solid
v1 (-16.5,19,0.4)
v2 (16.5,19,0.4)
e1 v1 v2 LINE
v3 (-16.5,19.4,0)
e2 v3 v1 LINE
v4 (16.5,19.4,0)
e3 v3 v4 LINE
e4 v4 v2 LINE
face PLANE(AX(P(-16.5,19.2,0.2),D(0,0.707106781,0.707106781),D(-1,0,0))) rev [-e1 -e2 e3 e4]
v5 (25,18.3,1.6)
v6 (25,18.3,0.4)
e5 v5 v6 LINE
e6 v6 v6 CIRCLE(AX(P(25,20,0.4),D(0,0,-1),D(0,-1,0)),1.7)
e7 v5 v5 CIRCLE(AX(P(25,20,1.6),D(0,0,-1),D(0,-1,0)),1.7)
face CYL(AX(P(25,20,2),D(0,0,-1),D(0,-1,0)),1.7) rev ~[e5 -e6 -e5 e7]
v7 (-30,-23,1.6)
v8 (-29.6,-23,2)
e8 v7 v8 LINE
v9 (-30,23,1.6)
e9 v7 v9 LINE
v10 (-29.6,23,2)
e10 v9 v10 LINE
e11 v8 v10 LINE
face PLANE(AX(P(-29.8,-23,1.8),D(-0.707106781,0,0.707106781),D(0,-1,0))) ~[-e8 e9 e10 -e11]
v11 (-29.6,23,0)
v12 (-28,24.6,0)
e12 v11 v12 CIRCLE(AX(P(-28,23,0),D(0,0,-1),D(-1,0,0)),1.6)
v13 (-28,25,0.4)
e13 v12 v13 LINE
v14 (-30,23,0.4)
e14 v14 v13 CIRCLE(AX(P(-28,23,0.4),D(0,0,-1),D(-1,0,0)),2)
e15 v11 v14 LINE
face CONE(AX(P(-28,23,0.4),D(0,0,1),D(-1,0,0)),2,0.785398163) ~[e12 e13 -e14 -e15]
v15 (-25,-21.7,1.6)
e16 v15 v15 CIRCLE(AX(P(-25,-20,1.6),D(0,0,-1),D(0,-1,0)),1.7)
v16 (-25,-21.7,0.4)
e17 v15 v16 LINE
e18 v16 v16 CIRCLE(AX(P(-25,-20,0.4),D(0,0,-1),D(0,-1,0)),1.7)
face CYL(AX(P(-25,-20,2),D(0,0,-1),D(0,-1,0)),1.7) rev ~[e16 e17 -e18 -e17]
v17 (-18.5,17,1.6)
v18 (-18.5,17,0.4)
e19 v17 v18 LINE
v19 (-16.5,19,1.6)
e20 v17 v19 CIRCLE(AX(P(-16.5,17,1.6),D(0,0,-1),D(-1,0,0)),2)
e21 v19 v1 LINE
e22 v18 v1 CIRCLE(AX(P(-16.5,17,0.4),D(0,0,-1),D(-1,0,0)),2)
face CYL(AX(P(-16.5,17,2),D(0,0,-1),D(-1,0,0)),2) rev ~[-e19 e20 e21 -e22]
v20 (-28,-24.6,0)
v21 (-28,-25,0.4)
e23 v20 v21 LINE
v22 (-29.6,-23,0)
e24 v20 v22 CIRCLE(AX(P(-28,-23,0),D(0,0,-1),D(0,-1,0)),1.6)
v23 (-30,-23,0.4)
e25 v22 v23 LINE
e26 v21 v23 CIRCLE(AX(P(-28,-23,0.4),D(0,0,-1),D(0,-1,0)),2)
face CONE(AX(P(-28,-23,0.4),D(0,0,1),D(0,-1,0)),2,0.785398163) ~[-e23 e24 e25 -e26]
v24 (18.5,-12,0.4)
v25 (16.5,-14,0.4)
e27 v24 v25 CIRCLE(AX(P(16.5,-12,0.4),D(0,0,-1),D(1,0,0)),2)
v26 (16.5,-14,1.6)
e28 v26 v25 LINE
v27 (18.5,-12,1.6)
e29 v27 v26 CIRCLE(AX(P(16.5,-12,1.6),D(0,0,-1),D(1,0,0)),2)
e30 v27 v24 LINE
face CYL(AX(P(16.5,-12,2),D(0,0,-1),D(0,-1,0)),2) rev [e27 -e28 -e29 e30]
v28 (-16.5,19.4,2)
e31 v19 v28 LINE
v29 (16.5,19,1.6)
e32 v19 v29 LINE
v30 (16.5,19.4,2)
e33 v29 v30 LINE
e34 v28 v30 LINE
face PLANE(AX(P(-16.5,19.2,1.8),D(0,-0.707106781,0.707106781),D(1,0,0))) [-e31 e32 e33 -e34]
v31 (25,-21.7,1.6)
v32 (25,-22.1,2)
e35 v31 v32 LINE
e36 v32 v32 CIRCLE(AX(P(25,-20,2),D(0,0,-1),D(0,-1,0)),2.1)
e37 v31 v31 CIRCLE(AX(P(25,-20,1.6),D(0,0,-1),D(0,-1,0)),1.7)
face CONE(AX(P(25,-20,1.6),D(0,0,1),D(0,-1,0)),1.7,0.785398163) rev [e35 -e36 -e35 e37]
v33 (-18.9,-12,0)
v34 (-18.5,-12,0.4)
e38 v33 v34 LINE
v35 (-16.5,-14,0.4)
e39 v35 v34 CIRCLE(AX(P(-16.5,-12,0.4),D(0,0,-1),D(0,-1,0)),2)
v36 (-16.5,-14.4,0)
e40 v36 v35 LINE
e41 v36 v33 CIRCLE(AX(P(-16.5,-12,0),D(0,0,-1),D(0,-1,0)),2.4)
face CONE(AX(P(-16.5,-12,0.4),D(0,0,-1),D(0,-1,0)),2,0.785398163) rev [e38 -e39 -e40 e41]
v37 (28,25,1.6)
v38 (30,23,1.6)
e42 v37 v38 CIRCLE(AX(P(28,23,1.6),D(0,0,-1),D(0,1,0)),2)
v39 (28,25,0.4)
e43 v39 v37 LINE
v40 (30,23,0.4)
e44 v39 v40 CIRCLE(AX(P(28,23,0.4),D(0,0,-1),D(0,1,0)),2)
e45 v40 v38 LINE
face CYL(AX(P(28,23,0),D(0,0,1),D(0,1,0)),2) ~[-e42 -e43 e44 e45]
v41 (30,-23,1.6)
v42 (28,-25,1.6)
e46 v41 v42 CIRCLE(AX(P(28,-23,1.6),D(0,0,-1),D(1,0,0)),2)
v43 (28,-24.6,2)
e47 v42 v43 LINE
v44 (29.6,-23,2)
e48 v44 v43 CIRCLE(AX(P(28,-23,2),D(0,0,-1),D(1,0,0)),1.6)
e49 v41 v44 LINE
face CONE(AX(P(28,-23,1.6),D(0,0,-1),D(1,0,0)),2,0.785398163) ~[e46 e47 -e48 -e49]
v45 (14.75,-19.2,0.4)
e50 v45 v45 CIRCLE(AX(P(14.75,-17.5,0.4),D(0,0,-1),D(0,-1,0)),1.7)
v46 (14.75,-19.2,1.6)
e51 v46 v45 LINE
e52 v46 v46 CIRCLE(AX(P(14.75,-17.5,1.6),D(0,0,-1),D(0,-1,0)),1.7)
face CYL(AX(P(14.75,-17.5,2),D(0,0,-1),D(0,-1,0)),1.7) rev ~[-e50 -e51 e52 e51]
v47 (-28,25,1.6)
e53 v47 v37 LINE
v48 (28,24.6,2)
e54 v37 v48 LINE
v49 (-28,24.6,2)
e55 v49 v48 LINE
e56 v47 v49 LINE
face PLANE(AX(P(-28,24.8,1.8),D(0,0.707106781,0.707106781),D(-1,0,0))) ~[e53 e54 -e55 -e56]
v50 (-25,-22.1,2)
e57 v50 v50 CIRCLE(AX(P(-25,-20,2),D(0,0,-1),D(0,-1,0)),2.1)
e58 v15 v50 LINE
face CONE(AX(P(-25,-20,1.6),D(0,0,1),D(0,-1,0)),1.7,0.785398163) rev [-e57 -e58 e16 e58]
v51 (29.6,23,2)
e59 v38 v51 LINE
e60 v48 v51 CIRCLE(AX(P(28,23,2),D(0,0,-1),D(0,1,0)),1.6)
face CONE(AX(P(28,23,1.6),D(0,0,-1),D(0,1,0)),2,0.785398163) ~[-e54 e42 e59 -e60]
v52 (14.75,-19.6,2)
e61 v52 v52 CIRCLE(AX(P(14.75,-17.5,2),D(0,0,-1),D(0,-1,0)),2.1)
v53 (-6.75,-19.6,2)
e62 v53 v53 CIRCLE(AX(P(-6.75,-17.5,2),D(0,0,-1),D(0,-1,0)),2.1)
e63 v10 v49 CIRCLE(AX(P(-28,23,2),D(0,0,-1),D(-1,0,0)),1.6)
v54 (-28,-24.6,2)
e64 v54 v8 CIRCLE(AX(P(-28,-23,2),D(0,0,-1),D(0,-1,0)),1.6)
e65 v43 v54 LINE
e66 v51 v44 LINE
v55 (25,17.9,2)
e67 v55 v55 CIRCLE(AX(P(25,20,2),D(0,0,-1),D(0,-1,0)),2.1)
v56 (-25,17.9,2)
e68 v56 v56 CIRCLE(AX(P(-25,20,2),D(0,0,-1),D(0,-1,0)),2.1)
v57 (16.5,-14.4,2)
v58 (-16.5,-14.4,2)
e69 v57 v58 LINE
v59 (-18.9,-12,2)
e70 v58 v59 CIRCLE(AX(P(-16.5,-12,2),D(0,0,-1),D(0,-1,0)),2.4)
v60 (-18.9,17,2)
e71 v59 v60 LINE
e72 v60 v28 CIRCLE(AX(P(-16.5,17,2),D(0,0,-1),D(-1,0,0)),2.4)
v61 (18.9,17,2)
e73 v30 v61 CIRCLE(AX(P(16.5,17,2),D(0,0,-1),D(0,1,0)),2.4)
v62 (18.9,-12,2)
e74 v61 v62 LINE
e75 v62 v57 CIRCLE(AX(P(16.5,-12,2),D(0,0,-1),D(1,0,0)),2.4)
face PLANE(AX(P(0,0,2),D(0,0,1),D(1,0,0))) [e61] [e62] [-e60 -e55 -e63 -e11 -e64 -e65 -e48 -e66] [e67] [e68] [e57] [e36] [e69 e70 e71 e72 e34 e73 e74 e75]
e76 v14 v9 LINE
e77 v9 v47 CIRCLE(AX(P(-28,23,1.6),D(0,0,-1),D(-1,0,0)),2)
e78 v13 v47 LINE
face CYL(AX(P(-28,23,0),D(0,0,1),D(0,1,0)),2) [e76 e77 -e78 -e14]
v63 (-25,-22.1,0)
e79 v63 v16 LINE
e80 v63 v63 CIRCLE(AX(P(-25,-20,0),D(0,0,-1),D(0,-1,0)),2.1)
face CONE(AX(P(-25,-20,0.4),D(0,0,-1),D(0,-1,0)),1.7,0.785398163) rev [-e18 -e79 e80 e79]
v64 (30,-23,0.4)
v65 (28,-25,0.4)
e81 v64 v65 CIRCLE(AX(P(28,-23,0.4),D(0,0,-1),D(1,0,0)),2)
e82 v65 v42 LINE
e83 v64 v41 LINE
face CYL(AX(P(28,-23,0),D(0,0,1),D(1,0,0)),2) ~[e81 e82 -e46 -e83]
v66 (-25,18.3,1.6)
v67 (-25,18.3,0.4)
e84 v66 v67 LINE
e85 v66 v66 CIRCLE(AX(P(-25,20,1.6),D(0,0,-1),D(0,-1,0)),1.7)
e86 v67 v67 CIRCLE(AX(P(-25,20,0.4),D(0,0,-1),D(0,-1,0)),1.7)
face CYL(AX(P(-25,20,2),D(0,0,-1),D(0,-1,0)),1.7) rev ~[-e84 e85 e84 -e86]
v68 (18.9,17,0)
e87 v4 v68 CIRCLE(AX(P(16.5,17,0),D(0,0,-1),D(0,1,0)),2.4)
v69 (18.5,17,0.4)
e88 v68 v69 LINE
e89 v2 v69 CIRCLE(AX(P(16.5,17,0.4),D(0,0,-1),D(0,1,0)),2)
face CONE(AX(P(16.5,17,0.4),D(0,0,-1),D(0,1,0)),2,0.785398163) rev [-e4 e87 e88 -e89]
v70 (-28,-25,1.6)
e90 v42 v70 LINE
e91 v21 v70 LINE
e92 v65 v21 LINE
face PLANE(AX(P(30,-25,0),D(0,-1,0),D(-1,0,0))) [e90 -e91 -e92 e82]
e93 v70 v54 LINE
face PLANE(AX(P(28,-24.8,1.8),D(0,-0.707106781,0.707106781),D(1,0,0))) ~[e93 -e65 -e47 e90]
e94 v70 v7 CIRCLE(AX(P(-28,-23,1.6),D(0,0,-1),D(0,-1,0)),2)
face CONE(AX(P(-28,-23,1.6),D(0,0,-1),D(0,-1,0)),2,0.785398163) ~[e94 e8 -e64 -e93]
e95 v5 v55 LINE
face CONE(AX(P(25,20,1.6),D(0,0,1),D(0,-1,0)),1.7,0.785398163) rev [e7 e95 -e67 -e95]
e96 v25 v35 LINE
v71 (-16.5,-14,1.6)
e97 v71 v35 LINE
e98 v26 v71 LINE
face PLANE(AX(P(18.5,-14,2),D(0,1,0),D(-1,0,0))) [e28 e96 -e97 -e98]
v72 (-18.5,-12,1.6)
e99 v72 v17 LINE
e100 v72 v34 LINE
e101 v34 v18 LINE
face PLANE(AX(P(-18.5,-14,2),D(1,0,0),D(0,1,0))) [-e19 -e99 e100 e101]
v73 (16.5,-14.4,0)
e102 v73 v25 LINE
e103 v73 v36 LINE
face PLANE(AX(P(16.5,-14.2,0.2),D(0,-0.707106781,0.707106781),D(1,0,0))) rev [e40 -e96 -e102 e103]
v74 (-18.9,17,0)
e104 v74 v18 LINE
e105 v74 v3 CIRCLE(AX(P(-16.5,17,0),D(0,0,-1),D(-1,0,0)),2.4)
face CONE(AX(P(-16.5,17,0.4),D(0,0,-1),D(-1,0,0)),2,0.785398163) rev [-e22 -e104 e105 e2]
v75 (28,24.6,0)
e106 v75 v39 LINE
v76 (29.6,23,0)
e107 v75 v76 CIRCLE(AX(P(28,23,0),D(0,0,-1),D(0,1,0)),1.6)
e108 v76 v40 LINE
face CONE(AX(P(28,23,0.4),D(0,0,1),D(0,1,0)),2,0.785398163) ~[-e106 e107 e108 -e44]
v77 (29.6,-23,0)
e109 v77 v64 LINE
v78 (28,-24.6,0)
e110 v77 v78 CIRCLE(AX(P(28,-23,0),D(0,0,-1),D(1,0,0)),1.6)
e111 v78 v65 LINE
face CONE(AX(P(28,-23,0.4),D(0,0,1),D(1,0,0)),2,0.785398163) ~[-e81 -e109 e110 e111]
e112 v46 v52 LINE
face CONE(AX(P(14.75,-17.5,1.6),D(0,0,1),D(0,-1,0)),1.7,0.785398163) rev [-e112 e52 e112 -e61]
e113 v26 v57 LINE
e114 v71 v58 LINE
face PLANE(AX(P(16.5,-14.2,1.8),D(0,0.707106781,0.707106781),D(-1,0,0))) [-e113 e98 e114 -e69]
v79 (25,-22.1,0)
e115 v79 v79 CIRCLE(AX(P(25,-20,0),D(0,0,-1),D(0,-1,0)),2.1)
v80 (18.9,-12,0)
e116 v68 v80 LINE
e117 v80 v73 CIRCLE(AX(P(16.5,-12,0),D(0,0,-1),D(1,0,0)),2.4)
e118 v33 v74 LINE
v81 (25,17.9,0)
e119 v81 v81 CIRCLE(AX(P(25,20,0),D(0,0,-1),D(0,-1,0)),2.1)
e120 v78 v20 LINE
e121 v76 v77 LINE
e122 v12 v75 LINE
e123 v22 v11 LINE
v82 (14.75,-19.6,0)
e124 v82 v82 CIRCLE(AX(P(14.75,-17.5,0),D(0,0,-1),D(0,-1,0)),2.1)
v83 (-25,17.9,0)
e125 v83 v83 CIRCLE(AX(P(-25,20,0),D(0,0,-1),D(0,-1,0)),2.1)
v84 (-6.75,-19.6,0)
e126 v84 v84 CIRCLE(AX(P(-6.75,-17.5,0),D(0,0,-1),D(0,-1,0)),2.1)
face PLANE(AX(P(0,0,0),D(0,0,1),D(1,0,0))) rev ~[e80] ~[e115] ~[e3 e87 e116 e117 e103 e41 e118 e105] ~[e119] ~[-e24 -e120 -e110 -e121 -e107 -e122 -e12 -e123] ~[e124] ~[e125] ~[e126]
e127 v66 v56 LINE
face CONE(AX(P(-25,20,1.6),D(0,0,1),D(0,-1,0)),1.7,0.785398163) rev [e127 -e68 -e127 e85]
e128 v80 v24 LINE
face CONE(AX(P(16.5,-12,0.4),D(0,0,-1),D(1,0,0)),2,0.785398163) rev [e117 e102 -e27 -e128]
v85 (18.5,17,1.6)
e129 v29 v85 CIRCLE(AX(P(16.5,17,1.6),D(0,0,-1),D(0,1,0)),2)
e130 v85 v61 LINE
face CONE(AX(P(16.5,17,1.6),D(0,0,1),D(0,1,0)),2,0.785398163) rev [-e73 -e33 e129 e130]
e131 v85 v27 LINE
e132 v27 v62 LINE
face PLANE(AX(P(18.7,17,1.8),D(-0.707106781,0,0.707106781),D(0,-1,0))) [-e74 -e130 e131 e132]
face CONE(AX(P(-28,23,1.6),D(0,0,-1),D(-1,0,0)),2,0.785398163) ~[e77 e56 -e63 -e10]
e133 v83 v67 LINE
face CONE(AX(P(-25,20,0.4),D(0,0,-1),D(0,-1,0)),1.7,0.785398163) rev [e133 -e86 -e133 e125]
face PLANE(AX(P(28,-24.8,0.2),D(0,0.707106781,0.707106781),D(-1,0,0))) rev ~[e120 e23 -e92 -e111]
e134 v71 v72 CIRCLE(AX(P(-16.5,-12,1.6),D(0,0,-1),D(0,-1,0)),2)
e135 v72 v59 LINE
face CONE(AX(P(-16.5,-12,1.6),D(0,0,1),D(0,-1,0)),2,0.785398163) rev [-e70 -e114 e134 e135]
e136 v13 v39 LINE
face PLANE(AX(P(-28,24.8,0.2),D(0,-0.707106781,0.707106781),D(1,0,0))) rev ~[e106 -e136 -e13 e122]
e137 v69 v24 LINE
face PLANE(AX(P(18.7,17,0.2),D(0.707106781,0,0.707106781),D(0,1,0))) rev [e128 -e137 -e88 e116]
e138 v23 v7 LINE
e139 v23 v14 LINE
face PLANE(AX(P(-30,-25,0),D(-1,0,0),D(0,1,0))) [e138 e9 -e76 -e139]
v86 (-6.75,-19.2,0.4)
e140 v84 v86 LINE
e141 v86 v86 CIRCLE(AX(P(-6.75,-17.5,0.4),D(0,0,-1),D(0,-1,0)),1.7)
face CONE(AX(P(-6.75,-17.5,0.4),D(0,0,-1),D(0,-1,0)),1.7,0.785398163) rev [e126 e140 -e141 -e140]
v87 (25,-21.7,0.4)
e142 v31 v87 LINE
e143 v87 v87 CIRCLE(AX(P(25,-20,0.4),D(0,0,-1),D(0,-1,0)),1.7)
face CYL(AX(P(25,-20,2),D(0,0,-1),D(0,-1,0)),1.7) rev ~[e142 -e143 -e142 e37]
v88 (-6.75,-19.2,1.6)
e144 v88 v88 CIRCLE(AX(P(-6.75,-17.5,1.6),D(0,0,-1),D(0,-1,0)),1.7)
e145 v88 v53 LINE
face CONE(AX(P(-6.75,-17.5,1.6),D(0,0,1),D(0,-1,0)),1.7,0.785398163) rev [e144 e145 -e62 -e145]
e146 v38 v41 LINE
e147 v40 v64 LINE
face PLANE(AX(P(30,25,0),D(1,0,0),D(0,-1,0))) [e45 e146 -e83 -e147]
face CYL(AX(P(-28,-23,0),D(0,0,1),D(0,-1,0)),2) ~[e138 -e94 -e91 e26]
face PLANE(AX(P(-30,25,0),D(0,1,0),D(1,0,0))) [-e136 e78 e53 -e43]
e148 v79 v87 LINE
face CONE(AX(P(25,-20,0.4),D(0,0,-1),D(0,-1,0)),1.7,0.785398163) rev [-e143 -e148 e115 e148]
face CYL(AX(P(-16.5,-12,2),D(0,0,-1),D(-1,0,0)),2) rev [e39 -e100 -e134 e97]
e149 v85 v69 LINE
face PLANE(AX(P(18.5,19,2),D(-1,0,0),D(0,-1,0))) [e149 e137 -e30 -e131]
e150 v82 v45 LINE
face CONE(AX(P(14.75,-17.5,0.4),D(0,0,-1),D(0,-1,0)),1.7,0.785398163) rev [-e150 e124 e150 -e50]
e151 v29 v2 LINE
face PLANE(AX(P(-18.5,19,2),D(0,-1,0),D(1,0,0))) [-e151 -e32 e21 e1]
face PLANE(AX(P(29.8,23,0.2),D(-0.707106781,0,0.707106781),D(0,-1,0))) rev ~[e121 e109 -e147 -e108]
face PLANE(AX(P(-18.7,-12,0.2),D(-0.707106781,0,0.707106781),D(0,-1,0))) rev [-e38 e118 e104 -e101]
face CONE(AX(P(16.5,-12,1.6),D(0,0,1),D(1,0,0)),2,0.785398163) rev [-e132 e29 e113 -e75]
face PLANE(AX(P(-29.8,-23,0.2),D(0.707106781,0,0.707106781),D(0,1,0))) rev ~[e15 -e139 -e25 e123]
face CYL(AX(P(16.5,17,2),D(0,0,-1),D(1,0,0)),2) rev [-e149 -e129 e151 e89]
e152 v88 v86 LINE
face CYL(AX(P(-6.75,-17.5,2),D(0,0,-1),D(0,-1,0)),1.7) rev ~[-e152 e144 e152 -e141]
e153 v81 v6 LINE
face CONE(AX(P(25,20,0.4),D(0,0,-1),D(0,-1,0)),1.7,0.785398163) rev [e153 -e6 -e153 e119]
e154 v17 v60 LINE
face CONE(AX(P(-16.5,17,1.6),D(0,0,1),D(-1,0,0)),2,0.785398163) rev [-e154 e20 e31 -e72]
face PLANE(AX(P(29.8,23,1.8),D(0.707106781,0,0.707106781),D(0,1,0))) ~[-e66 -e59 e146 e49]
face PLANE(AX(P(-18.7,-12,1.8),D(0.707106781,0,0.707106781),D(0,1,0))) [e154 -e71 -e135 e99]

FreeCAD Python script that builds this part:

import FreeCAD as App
import Part
import Sketcher

V = App.Vector


def edges_at(feature, points):
    """Names of the edges that pass closest to the given points."""
    edges = feature.Shape.Edges
    near = lambda p: min(range(len(edges)), key=lambda i: edges[i].distToShape(Part.Vertex(*p))[0])
    return sorted({f"Edge{near(p) + 1}" for p in points})

doc = App.newDocument("Part")
body = doc.addObject("PartDesign::Body", "Body")

sketch1 = body.newObject("Sketcher::SketchObject", "Sketch")
sketch1.AttachmentSupport = (doc.getObject("XY_Plane"), [""])
sketch1.MapMode = "FlatFace"
sketch1.addGeometry(Part.LineSegment(V(30, 25, 0), V(-30, 25, 0)), False)
sketch1.addGeometry(Part.LineSegment(V(-30, 25, 0), V(-30, -25, 0)), False)
sketch1.addGeometry(Part.LineSegment(V(-30, -25, 0), V(30, -25, 0)), False)
sketch1.addGeometry(Part.LineSegment(V(30, -25, 0), V(30, 25, 0)), False)
sketch1.addConstraint(Sketcher.Constraint("Coincident", 0, 2, 1, 1))
sketch1.addConstraint(Sketcher.Constraint("Coincident", 1, 2, 2, 1))
sketch1.addConstraint(Sketcher.Constraint("Coincident", 2, 2, 3, 1))
sketch1.addConstraint(Sketcher.Constraint("Coincident", 3, 2, 0, 1))
sketch1.addConstraint(Sketcher.Constraint("Horizontal", 0))
sketch1.addConstraint(Sketcher.Constraint("Vertical", 1))
sketch1.addConstraint(Sketcher.Constraint("Horizontal", 2))
sketch1.addConstraint(Sketcher.Constraint("Vertical", 3))
sketch1.addConstraint(Sketcher.Constraint("Symmetric", 0, 2, 2, 2, -1, 1))
sketch1.addConstraint(Sketcher.Constraint("DistanceX", 0, 2, 0, 1, 60.0))
sketch1.addConstraint(Sketcher.Constraint("DistanceY", 1, 2, 1, 1, 50.0))
pad1 = body.newObject("PartDesign::Pad", "Pad")
pad1.Profile = sketch1
pad1.Length = 2
doc.recompute()

fillet = body.newObject("PartDesign::Fillet", "Fillet")
fillet.Base = (pad1, edges_at(pad1, [
    (30, 25, 1),
    (-30, 25, 1),
    (30, -25, 1),
    (-30, -25, 1),
]))
fillet.Radius = 2

sketch2 = body.newObject("Sketcher::SketchObject", "Sketch001")
sketch2.AttachmentSupport = (doc.getObject("XY_Plane"), [""])
sketch2.MapMode = "FlatFace"
sketch2.AttachmentOffset = App.Placement(V(0, 0, 2), App.Rotation())
sketch2.addGeometry(Part.Circle(V(-25, 20, 0), V(0, 0, 1), 1.7), False)
sketch2.addGeometry(Part.Circle(V(25, 20, 0), V(0, 0, 1), 1.7), False)
sketch2.addGeometry(Part.Circle(V(-25, -20, 0), V(0, 0, 1), 1.7), False)
sketch2.addGeometry(Part.Circle(V(25, -20, 0), V(0, 0, 1), 1.7), False)
sketch2.addConstraint(Sketcher.Constraint("Equal", 0, 1))
sketch2.addConstraint(Sketcher.Constraint("Equal", 1, 2))
sketch2.addConstraint(Sketcher.Constraint("Equal", 2, 3))
sketch2.addConstraint(Sketcher.Constraint("Symmetric", 1, 3, 2, 3, -1, 1))
sketch2.addConstraint(Sketcher.Constraint("Symmetric", 0, 3, 3, 3, -1, 1))
sketch2.addConstraint(Sketcher.Constraint("Symmetric", 0, 3, 1, 3, -2))
sketch2.addConstraint(Sketcher.Constraint("Diameter", 0, 3.4))
sketch2.addConstraint(Sketcher.Constraint("DistanceX", 0, 3, -1, 1, 25.0))
sketch2.addConstraint(Sketcher.Constraint("DistanceY", -1, 1, 0, 3, 20.0))
doc.recompute()
hole = body.newObject("PartDesign::Hole", "Hole")
hole.Profile = sketch2
hole.ThreadType = "None"
hole.Diameter = 3.4
hole.DepthType = "ThroughAll"

sketch3 = body.newObject("Sketcher::SketchObject", "Sketch002")
sketch3.AttachmentSupport = (doc.getObject("XY_Plane"), [""])
sketch3.MapMode = "FlatFace"
sketch3.AttachmentOffset = App.Placement(V(0, 0, 2), App.Rotation())
sketch3.addGeometry(Part.LineSegment(V(18, 19, 0), V(-18, 19, 0)), False)
sketch3.addGeometry(Part.LineSegment(V(-18, 19, 0), V(-18, -14, 0)), False)
sketch3.addGeometry(Part.LineSegment(V(-18, -14, 0), V(18, -14, 0)), False)
sketch3.addGeometry(Part.LineSegment(V(18, -14, 0), V(18, 19, 0)), False)
sketch3.addConstraint(Sketcher.Constraint("Coincident", 0, 2, 1, 1))
sketch3.addConstraint(Sketcher.Constraint("Coincident", 1, 2, 2, 1))
sketch3.addConstraint(Sketcher.Constraint("Coincident", 2, 2, 3, 1))
sketch3.addConstraint(Sketcher.Constraint("Coincident", 3, 2, 0, 1))
sketch3.addConstraint(Sketcher.Constraint("Horizontal", 0))
sketch3.addConstraint(Sketcher.Constraint("Vertical", 1))
sketch3.addConstraint(Sketcher.Constraint("Horizontal", 2))
sketch3.addConstraint(Sketcher.Constraint("Vertical", 3))
sketch3.addConstraint(Sketcher.Constraint("DistanceX", 0, 2, 0, 1, 37.0))
sketch3.addConstraint(Sketcher.Constraint("DistanceY", 1, 2, 1, 1, 33.0))
sketch3.addConstraint(Sketcher.Constraint("DistanceY", 1, 2, -1, 1, 14.0))
sketch3.addConstraint(Sketcher.Constraint("DistanceX", 0, 2, -1, 1, 18.5))
pocket1 = body.newObject("PartDesign::Pocket", "Pocket")
pocket1.Profile = sketch3
pocket1.Length = 2
doc.recompute()

fillet2 = body.newObject("PartDesign::Fillet", "Fillet001")
fillet2.Base = (pocket1, edges_at(pocket1, [
    (-18.5, 19, 1),
    (18.5, 19, 1),
    (18.5, -14, 1),
    (-18.5, -14, 1),
]))
fillet2.Radius = 2

sketch4 = body.newObject("Sketcher::SketchObject", "Sketch003")
sketch4.AttachmentSupport = (doc.getObject("XY_Plane"), [""])
sketch4.MapMode = "FlatFace"
sketch4.AttachmentOffset = App.Placement(V(0, 0, 2), App.Rotation())
sketch4.addGeometry(Part.Circle(V(-6.8, -17.5, 0), V(0, 0, 1), 1.7), False)
sketch4.addGeometry(Part.Circle(V(14.8, -17.5, 0), V(0, 0, 1), 1.7), False)
sketch4.addConstraint(Sketcher.Constraint("Equal", 0, 1))
sketch4.addConstraint(Sketcher.Constraint("Horizontal", 0, 3, 1, 3))
sketch4.addConstraint(Sketcher.Constraint("Diameter", 0, 3.4))
sketch4.addConstraint(Sketcher.Constraint("DistanceY", 0, 3, -1, 1, 17.5))
sketch4.addConstraint(Sketcher.Constraint("DistanceX", 0, 3, 1, 3, 21.5))
sketch4.addConstraint(Sketcher.Constraint("DistanceX", 0, 3, -1, 1, 6.75))
doc.recompute()
hole2 = body.newObject("PartDesign::Hole", "Hole001")
hole2.Profile = sketch4
hole2.ThreadType = "None"
hole2.Diameter = 3.4
hole2.DepthType = "ThroughAll"
doc.recompute()

chamfer = body.newObject("PartDesign::Chamfer", "Chamfer")
chamfer.Base = (hole2, edges_at(hole2, [
    (0, 25, 2),
    (-29.414, 24.414, 2),
    (-30, 0, 2),
    (-29.414, -24.414, 2),
    (0, -25, 2),
    (29.414, -24.414, 2),
    (30, 0, 2),
    (29.414, 24.414, 2),
    (0, 25, 0),
    (-29.414, 24.414, 0),
    (-30, 0, 0),
    (-29.414, -24.414, 0),
    (0, -25, 0),
    (29.414, -24.414, 0),
    (30, 0, 0),
    (29.414, 24.414, 0),
    (-18.5, 2.5, 0),
    (-17.914, -13.414, 0),
    (0, -14, 0),
    (17.914, -13.414, 0),
    (18.5, 2.5, 0),
    (17.914, 18.414, 0),
    (0, 19, 0),
    (-17.914, 18.414, 0),
    (0, 19, 2),
    (17.914, 18.414, 2),
    (18.5, 2.5, 2),
    (17.914, -13.414, 2),
    (0, -14, 2),
    (-17.914, -13.414, 2),
    (-18.5, 2.5, 2),
    (-17.914, 18.414, 2),
    (-25, -18.3, 2),
    (25, -18.3, 2),
    (-25, 21.7, 2),
    (25, 21.7, 2),
    (-6.75, -15.8, 2),
    (14.75, -15.8, 2),
    (-25, -18.3, 0),
    (25, -18.3, 0),
    (-25, 21.7, 0),
    (25, 21.7, 0),
    (-6.75, -15.8, 0),
    (14.75, -15.8, 0),
]))
chamfer.Size = 0.4

doc.recompute()
